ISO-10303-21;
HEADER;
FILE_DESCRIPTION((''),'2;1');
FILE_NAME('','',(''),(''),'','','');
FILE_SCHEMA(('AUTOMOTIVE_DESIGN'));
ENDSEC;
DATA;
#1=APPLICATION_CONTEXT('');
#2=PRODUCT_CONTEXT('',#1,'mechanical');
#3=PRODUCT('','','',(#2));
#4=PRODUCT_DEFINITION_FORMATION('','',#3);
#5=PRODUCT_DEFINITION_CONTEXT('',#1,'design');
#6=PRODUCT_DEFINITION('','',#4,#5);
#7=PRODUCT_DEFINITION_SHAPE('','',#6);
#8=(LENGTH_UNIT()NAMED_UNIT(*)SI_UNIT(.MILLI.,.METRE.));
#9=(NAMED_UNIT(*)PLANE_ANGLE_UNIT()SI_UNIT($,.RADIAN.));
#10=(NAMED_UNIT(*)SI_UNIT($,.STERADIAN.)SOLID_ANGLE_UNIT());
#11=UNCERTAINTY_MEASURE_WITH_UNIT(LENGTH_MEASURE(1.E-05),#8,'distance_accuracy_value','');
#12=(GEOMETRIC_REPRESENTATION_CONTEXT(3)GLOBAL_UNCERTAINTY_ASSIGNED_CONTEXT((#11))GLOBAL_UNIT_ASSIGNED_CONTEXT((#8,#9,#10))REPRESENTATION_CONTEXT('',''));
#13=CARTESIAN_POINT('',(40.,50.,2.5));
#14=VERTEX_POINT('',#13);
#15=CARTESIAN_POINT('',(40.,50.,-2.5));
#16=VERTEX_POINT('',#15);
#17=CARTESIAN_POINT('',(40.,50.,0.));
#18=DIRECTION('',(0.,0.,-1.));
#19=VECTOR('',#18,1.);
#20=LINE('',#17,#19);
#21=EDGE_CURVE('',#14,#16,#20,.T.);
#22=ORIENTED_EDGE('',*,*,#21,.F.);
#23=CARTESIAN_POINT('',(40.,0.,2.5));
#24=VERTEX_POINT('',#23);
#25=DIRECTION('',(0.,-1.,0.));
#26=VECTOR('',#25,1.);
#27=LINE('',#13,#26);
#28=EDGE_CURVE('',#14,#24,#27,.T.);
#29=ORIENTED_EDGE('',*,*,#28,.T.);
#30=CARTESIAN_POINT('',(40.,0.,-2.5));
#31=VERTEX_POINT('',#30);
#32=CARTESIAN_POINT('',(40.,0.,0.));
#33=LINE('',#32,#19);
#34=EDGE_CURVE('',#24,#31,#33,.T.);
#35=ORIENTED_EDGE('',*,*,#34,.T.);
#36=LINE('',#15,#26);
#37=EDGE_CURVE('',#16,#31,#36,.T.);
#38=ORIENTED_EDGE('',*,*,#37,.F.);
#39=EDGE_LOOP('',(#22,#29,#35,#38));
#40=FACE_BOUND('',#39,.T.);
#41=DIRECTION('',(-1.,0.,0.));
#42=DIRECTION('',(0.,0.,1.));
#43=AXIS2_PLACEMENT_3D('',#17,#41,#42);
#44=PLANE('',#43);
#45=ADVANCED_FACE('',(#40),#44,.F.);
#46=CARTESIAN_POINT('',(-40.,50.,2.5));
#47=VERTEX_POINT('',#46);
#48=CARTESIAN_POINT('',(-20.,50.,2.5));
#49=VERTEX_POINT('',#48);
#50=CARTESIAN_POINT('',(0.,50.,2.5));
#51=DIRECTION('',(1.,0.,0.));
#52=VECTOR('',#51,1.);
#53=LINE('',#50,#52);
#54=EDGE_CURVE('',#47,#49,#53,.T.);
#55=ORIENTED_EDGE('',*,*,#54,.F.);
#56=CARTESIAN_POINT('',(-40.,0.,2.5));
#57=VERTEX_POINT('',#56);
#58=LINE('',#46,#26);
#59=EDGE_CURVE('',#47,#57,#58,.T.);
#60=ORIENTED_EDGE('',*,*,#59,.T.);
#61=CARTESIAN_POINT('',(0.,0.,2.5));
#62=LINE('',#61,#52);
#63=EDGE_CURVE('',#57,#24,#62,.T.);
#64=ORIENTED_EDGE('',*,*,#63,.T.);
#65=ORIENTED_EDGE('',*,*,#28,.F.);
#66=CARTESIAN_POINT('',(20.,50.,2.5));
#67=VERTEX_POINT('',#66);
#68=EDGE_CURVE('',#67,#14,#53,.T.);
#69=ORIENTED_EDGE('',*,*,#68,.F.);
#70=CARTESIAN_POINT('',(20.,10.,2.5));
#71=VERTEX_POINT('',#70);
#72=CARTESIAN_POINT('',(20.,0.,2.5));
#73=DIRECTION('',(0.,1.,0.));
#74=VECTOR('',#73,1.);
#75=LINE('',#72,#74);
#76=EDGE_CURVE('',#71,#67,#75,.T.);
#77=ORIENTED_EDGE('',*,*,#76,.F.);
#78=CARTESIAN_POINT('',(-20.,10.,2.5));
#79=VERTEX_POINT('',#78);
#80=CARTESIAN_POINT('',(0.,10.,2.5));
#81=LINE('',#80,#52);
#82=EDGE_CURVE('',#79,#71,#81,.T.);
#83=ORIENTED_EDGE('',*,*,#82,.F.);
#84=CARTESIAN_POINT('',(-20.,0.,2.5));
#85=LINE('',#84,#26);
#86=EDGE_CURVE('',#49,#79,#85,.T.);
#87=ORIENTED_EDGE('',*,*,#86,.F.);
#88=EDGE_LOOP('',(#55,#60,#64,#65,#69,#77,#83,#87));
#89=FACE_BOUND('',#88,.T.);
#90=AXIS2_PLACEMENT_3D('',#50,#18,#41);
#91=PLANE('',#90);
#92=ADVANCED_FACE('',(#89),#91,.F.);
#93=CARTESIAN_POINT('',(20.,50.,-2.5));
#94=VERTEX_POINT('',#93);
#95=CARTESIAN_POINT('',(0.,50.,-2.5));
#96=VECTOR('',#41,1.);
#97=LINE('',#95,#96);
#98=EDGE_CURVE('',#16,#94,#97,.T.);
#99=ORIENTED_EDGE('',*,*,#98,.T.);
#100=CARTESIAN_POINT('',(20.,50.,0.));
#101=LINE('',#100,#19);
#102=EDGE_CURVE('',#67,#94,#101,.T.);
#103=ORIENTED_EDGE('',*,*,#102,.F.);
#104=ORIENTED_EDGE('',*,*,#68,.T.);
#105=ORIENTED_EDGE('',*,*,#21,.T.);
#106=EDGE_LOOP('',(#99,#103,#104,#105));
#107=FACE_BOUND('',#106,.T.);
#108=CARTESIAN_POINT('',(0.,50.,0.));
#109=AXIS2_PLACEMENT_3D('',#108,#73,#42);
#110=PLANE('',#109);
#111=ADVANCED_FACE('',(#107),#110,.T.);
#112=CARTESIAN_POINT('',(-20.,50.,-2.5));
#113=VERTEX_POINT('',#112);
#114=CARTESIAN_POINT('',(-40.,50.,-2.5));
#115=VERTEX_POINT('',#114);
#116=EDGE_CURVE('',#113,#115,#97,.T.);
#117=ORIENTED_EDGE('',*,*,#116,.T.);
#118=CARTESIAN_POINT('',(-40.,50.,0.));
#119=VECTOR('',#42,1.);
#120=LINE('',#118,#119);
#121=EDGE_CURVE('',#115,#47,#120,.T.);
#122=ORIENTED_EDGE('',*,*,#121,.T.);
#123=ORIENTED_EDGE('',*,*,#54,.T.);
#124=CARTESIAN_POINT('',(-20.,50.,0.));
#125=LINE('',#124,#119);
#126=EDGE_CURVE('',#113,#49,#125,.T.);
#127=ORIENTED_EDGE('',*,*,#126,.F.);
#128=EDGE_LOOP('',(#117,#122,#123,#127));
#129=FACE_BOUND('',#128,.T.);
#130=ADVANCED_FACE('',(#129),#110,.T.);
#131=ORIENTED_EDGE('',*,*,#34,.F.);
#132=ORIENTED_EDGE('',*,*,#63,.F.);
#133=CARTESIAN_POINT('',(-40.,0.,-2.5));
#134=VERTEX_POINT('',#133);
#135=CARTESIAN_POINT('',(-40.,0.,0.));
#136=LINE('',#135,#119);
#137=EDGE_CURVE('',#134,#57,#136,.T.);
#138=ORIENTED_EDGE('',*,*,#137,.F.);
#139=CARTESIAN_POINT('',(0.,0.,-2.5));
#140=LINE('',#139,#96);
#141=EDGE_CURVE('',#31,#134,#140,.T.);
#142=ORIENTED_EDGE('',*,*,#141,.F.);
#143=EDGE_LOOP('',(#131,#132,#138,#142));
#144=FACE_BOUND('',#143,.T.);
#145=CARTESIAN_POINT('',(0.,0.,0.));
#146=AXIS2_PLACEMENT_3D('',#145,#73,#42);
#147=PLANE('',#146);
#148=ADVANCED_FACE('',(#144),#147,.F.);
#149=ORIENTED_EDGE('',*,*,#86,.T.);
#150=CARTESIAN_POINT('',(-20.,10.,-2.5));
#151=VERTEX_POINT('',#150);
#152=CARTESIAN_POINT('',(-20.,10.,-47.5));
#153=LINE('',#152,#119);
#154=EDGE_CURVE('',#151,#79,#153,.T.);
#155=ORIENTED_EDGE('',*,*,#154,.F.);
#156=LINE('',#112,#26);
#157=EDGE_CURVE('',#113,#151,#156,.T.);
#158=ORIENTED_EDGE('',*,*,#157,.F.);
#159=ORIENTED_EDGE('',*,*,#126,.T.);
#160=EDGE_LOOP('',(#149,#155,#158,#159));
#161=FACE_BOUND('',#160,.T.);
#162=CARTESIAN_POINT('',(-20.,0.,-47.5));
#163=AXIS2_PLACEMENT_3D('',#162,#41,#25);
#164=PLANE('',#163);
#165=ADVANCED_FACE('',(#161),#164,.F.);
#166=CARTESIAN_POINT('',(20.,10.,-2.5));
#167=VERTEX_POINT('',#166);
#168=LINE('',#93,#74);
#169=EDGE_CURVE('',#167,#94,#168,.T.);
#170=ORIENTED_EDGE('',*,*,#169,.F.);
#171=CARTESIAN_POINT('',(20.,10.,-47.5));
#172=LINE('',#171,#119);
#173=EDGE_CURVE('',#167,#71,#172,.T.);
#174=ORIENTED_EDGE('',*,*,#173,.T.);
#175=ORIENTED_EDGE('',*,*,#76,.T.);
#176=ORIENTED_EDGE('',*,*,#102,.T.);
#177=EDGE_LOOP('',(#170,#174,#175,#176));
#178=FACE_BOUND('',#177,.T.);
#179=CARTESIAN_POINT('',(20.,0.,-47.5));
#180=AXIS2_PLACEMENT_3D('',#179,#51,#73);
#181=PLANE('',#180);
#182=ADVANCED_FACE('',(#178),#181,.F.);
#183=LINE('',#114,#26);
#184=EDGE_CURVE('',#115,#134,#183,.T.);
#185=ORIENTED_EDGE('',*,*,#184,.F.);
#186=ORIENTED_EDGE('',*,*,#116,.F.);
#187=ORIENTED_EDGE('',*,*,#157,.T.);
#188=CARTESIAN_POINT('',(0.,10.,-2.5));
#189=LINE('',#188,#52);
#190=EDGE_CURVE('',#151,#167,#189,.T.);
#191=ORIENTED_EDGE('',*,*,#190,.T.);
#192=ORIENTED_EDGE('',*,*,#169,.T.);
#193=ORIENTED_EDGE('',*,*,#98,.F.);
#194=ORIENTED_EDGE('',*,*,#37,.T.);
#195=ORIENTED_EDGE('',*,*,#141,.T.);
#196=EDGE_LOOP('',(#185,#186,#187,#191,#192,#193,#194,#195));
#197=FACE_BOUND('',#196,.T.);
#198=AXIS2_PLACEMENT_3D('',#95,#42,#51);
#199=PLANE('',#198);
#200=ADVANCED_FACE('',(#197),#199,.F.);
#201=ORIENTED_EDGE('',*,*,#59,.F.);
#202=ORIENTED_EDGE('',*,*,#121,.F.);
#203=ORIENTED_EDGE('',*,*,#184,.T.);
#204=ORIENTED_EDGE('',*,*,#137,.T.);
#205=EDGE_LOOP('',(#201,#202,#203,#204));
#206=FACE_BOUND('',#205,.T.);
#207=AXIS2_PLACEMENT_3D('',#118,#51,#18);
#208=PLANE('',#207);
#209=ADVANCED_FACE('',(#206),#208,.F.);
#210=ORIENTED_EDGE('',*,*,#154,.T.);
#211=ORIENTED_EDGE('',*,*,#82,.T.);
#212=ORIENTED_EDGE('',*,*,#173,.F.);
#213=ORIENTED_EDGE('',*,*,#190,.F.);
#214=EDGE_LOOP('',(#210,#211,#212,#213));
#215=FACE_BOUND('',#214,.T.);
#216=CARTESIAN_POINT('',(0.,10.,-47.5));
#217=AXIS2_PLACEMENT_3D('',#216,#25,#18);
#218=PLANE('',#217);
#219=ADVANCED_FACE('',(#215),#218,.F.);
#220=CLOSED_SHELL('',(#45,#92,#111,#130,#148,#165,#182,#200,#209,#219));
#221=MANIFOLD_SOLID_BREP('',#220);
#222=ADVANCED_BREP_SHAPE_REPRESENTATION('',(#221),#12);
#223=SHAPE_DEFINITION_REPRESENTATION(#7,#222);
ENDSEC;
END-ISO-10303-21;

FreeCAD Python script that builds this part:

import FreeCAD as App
import Part
import Sketcher


def add_polygon(sketch, points):
    """Adds a closed chain of lines whose ends are joined by coincident constraints."""
    first, n = sketch.GeometryCount, len(points)
    for a, b in zip(points, points[1:] + points[:1]):
        sketch.addGeometry(Part.LineSegment(App.Vector(*a, 0), App.Vector(*b, 0)), False)
    for i in range(n):
        sketch.addConstraint(Sketcher.Constraint("Coincident", first + i, 2, first + (i + 1) % n, 1))

doc = App.newDocument("Part")
body = doc.addObject("PartDesign::Body", "Body")

# Sketch on XZ plane
sketch1 = body.newObject("Sketcher::SketchObject", "Sketch")
sketch1.AttachmentSupport = (doc.getObject("XZ_Plane"), [""])
sketch1.MapMode = "FlatFace"
add_polygon(sketch1, [(40, 2), (40, -2), (-40, -2), (-40, 2)])  # lines 0-3
sketch1.addConstraint([
    Sketcher.Constraint("Vertical", 0),
    Sketcher.Constraint("Horizontal", 1),
    Sketcher.Constraint("Vertical", 2),
    Sketcher.Constraint("Horizontal", 3),
    Sketcher.Constraint("Symmetric", 0, 2, 2, 2, -1, 1),
    Sketcher.Constraint("DistanceX", 1, 2, 1, 1, 80.0),
    Sketcher.Constraint("DistanceY", 0, 2, 0, 1, 5.0),
])
pad1 = body.newObject("PartDesign::Pad", "Pad")
pad1.Profile = sketch1
pad1.Length = 50
pad1.Reversed = True

# Sketch on XY plane
sketch2 = body.newObject("Sketcher::SketchObject", "Sketch001")
sketch2.AttachmentSupport = (doc.getObject("XY_Plane"), [""])
sketch2.MapMode = "FlatFace"
sketch2.AttachmentOffset = App.Placement(App.Vector(0, 0, 2.5), App.Rotation())
add_polygon(sketch2, [(20, 10), (20, 50), (-20, 50), (-20, 10)])  # lines 0-3
sketch2.addConstraint([
    Sketcher.Constraint("Vertical", 0),
    Sketcher.Constraint("Horizontal", 1),
    Sketcher.Constraint("Vertical", 2),
    Sketcher.Constraint("Horizontal", 3),
    Sketcher.Constraint("Equal", 3, 0),
    Sketcher.Constraint("DistanceX", 1, 2, 1, 1, 40.0),
    Sketcher.Constraint("DistanceX", -1, 1, 0, 2, 20.0),
    Sketcher.Constraint("DistanceY", -1, 1, 0, 2, 50.0),
])
pocket1 = body.newObject("PartDesign::Pocket", "Pocket")
pocket1.Profile = sketch2
pocket1.Length = 50

doc.recompute()
